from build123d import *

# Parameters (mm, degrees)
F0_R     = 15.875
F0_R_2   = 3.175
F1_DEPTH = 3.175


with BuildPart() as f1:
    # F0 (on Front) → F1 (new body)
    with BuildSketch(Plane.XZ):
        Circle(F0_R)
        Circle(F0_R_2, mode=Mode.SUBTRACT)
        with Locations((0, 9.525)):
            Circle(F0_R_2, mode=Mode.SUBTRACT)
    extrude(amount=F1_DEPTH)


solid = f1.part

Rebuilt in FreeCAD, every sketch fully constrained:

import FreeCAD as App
import Part
import Sketcher
Q = App.Units.Quantity

doc = App.newDocument("Part")
body = doc.addObject("PartDesign::Body", "Body")

# Sketch on XZ plane
sketch1 = body.newObject("Sketcher::SketchObject", "Sketch")
sketch1.AttachmentSupport = (doc.getObject("XZ_Plane"), [""])
sketch1.MapMode = "FlatFace"
sketch1.addGeometry([
    Part.Circle(App.Vector(0, 0, 0), App.Vector(0, 0, 1), 15.9),
    Part.Circle(App.Vector(0, 0, 0), App.Vector(0, 0, 1), 3.2),
    Part.Circle(App.Vector(0, 9.5, 0), App.Vector(0, 0, 1), 3.2),
], False)
sketch1.addConstraint([
    Sketcher.Constraint("Coincident", 0, 3, -1, 1),
    Sketcher.Constraint("Coincident", 1, 3, -1, 1),
    Sketcher.Constraint("Equal", 1, 2),
    Sketcher.Constraint("PointOnObject", 2, 3, -2),
    Sketcher.Constraint("Diameter", 0, Q("1.25 in")),
    Sketcher.Constraint("Diameter", 1, Q("0.25 in")),
    Sketcher.Constraint("DistanceY", -1, 1, 2, 3, Q("0.375 in")),
])
pad1 = body.newObject("PartDesign::Pad", "Pad")
pad1.Profile = sketch1
pad1.Length = Q("0.125 in")

doc.recompute()
